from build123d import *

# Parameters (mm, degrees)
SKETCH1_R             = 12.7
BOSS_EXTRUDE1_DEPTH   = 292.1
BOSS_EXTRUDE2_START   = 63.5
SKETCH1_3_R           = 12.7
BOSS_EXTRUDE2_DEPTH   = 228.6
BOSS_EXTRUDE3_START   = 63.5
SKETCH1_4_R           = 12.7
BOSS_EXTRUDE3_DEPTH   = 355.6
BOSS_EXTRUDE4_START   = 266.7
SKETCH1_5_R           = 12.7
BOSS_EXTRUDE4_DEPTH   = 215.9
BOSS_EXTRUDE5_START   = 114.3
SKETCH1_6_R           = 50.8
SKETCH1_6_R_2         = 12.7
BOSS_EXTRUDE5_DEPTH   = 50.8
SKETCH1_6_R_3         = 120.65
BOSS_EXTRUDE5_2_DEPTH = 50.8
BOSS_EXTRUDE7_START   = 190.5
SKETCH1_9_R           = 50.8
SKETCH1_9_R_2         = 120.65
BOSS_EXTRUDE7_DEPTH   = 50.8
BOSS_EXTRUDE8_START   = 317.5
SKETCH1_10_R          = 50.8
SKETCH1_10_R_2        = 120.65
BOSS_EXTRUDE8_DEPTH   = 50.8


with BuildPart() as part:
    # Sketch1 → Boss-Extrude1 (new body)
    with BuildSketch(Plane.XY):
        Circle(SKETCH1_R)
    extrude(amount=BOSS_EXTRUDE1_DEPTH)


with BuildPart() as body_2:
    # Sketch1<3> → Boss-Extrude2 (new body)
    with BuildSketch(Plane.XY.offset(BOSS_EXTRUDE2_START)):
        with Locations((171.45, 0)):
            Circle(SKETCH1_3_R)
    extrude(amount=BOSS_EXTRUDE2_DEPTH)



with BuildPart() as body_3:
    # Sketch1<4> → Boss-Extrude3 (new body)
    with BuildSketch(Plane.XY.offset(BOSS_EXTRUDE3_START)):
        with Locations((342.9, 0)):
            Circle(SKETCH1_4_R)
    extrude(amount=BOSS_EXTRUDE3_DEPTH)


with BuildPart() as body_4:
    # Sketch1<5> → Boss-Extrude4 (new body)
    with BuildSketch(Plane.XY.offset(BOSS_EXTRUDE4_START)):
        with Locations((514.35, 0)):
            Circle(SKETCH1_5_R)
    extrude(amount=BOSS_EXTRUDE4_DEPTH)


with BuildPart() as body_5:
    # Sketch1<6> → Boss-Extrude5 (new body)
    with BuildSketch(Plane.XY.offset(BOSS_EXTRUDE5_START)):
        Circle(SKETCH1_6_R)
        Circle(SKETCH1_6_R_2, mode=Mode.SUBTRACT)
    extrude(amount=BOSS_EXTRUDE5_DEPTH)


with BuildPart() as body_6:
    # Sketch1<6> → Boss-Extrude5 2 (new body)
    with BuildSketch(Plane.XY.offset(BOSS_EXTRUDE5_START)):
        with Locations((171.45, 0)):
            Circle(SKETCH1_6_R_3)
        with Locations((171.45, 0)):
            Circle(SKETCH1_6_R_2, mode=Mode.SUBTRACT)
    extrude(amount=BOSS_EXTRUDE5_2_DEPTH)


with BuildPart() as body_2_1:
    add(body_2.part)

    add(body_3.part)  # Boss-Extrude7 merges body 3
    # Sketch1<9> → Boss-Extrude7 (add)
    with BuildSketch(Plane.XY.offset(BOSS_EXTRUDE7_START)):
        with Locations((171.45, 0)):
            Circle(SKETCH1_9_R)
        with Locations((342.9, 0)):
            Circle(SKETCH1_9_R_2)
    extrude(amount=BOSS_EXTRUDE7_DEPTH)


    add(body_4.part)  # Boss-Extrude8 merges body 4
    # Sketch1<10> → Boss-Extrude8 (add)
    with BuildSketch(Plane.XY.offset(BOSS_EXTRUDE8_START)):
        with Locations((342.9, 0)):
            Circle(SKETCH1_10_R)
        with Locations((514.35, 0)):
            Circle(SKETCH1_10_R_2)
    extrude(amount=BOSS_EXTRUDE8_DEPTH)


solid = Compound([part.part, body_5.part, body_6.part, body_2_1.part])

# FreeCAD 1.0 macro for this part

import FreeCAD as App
import Part
import Sketcher
Q = App.Units.Quantity

doc = App.newDocument("Part")
params = doc.addObject("Spreadsheet::Sheet", "Params")
for row, (alias, value) in enumerate([
    ("sketch1_diameter", "1 in"),
    ("pad1_length", "11.5 in"),
    ("sketch2_diameter", "1 in"),
    ("pad2_length", "9 in"),
    ("sketch3_diameter", "1 in"),
    ("pad3_length", "14 in"),
    ("sketch4_diameter", "1 in"),
    ("pad4_length", "8.5 in"),
    ("sketch5_diameter", "4 in"),
    ("sketch5_diameter2", "1 in"),
    ("pad5_length", "2 in"),
    ("sketch6_diameter", "1 in"),
    ("sketch6_diameter2", "9.5 in"),
    ("pad6_length", "2 in"),
    ("sketch7_diameter", "4 in"),
    ("sketch7_diameter2", "9.5 in"),
    ("pad7_length", "2 in"),
    ("sketch8_diameter", "4 in"),
    ("sketch8_diameter2", "9.5 in"),
    ("pad8_length", "2 in"),
], start=1):
    params.set(f"A{row}", alias)
    params.set(f"B{row}", "=" + value)
    params.setAlias(f"B{row}", alias)

body = doc.addObject("PartDesign::Body", "Body")

sketch1 = body.newObject("Sketcher::SketchObject", "Sketch")
sketch1.AttachmentSupport = (doc.getObject("XY_Plane"), [""])
sketch1.MapMode = "FlatFace"
sketch1.addGeometry(Part.Circle(App.Vector(0, 0, 0), App.Vector(0, 0, 1), 13), False)
sketch1.addConstraint([
    Sketcher.Constraint("Coincident", 0, 3, -1, 1),
    Sketcher.Constraint("Diameter", 0, Q("1 in")),
])
sketch1.setExpression("Constraints[1]", "Params.sketch1_diameter")
pad1 = body.newObject("PartDesign::Pad", "Pad")
pad1.Profile = sketch1
pad1.setExpression("Length", "Params.pad1_length")
body2 = doc.addObject("PartDesign::Body", "Body001")

sketch2 = body2.newObject("Sketcher::SketchObject", "Sketch001")
sketch2.AttachmentSupport = (doc.getObject("XY_Plane001"), [""])
sketch2.MapMode = "FlatFace"
sketch2.AttachmentOffset = App.Placement(App.Vector(0, 0, 2.5 * 25.4), App.Rotation())
sketch2.addGeometry(Part.Circle(App.Vector(171, 0, 0), App.Vector(0, 0, 1), 13), False)
sketch2.addConstraint([
    Sketcher.Constraint("PointOnObject", 0, 3, -1),
    Sketcher.Constraint("Diameter", 0, Q("1 in")),
    Sketcher.Constraint("DistanceX", -1, 1, 0, 3, Q("6.75 in")),
])
sketch2.setExpression("Constraints[1]", "Params.sketch2_diameter")
pad2 = body2.newObject("PartDesign::Pad", "Pad001")
pad2.Profile = sketch2
pad2.setExpression("Length", "Params.pad2_length")
body3 = doc.addObject("PartDesign::Body", "Body002")

sketch3 = body3.newObject("Sketcher::SketchObject", "Sketch002")
sketch3.AttachmentSupport = (doc.getObject("XY_Plane002"), [""])
sketch3.MapMode = "FlatFace"
sketch3.AttachmentOffset = App.Placement(App.Vector(0, 0, 2.5 * 25.4), App.Rotation())
sketch3.addGeometry(Part.Circle(App.Vector(343, 0, 0), App.Vector(0, 0, 1), 13), False)
sketch3.addConstraint([
    Sketcher.Constraint("PointOnObject", 0, 3, -1),
    Sketcher.Constraint("Diameter", 0, Q("1 in")),
    Sketcher.Constraint("DistanceX", -1, 1, 0, 3, Q("13.5 in")),
])
sketch3.setExpression("Constraints[1]", "Params.sketch3_diameter")
pad3 = body3.newObject("PartDesign::Pad", "Pad002")
pad3.Profile = sketch3
pad3.setExpression("Length", "Params.pad3_length")
body4 = doc.addObject("PartDesign::Body", "Body003")

sketch4 = body4.newObject("Sketcher::SketchObject", "Sketch003")
sketch4.AttachmentSupport = (doc.getObject("XY_Plane003"), [""])
sketch4.MapMode = "FlatFace"
sketch4.AttachmentOffset = App.Placement(App.Vector(0, 0, 10.5 * 25.4), App.Rotation())
sketch4.addGeometry(Part.Circle(App.Vector(514, 0, 0), App.Vector(0, 0, 1), 13), False)
sketch4.addConstraint([
    Sketcher.Constraint("PointOnObject", 0, 3, -1),
    Sketcher.Constraint("Diameter", 0, Q("1 in")),
    Sketcher.Constraint("DistanceX", -1, 1, 0, 3, Q("20.25 in")),
])
sketch4.setExpression("Constraints[1]", "Params.sketch4_diameter")
pad4 = body4.newObject("PartDesign::Pad", "Pad003")
pad4.Profile = sketch4
pad4.setExpression("Length", "Params.pad4_length")
body5 = doc.addObject("PartDesign::Body", "Body004")

sketch5 = body5.newObject("Sketcher::SketchObject", "Sketch004")
sketch5.AttachmentSupport = (doc.getObject("XY_Plane004"), [""])
sketch5.MapMode = "FlatFace"
sketch5.AttachmentOffset = App.Placement(App.Vector(0, 0, 4.5 * 25.4), App.Rotation())
sketch5.addGeometry([
    Part.Circle(App.Vector(0, 0, 0), App.Vector(0, 0, 1), 51),
    Part.Circle(App.Vector(0, 0, 0), App.Vector(0, 0, 1), 13),
], False)
sketch5.addConstraint([
    Sketcher.Constraint("Coincident", 0, 3, -1, 1),
    Sketcher.Constraint("Coincident", 1, 3, -1, 1),
    Sketcher.Constraint("Diameter", 0, Q("4 in")),
    Sketcher.Constraint("Diameter", 1, Q("1 in")),
])
sketch5.setExpression("Constraints[2]", "Params.sketch5_diameter")
sketch5.setExpression("Constraints[3]", "Params.sketch5_diameter2")
pad5 = body5.newObject("PartDesign::Pad", "Pad004")
pad5.Profile = sketch5
pad5.setExpression("Length", "Params.pad5_length")
body6 = doc.addObject("PartDesign::Body", "Body005")

sketch6 = body6.newObject("Sketcher::SketchObject", "Sketch005")
sketch6.AttachmentSupport = (doc.getObject("XY_Plane005"), [""])
sketch6.MapMode = "FlatFace"
sketch6.AttachmentOffset = App.Placement(App.Vector(0, 0, 4.5 * 25.4), App.Rotation())
sketch6.addGeometry([
    Part.Circle(App.Vector(171, 0, 0), App.Vector(0, 0, 1), 121),
    Part.Circle(App.Vector(171, 0, 0), App.Vector(0, 0, 1), 13),
], False)
sketch6.addConstraint([
    Sketcher.Constraint("Coincident", 1, 3, 0, 3),
    Sketcher.Constraint("PointOnObject", 0, 3, -1),
    Sketcher.Constraint("Diameter", 1, Q("1 in")),
    Sketcher.Constraint("Diameter", 0, Q("9.5 in")),
    Sketcher.Constraint("DistanceX", -1, 1, 0, 3, Q("6.75 in")),
])
sketch6.setExpression("Constraints[2]", "Params.sketch6_diameter")
sketch6.setExpression("Constraints[3]", "Params.sketch6_diameter2")
pad6 = body6.newObject("PartDesign::Pad", "Pad005")
pad6.Profile = sketch6
pad6.setExpression("Length", "Params.pad6_length")
body2.AllowCompound = True
doc.recompute()

boolean = body2.newObject("PartDesign::Boolean", "Boolean")
boolean.Type = "Fuse"
boolean.addObjects([body3])

sketch7 = body2.newObject("Sketcher::SketchObject", "Sketch006")
sketch7.AttachmentSupport = (doc.getObject("XY_Plane001"), [""])
sketch7.MapMode = "FlatFace"
sketch7.AttachmentOffset = App.Placement(App.Vector(0, 0, 7.5 * 25.4), App.Rotation())
sketch7.addGeometry([
    Part.Circle(App.Vector(171, 0, 0), App.Vector(0, 0, 1), 51),
    Part.Circle(App.Vector(343, 0, 0), App.Vector(0, 0, 1), 121),
], False)
sketch7.addConstraint([
    Sketcher.Constraint("PointOnObject", 0, 3, -1),
    Sketcher.Constraint("PointOnObject", 1, 3, -1),
    Sketcher.Constraint("Diameter", 0, Q("4 in")),
    Sketcher.Constraint("Diameter", 1, Q("9.5 in")),
    Sketcher.Constraint("DistanceX", -1, 1, 1, 3, Q("13.5 in")),
    Sketcher.Constraint("DistanceX", -1, 1, 0, 3, Q("6.75 in")),
])
sketch7.setExpression("Constraints[2]", "Params.sketch7_diameter")
sketch7.setExpression("Constraints[3]", "Params.sketch7_diameter2")
pad7 = body2.newObject("PartDesign::Pad", "Pad006")
pad7.Profile = sketch7
pad7.setExpression("Length", "Params.pad7_length")
doc.recompute()

boolean2 = body2.newObject("PartDesign::Boolean", "Boolean001")
boolean2.Type = "Fuse"
boolean2.addObjects([body4])

sketch8 = body2.newObject("Sketcher::SketchObject", "Sketch007")
sketch8.AttachmentSupport = (doc.getObject("XY_Plane001"), [""])
sketch8.MapMode = "FlatFace"
sketch8.AttachmentOffset = App.Placement(App.Vector(0, 0, 12.5 * 25.4), App.Rotation())
sketch8.addGeometry([
    Part.Circle(App.Vector(343, 0, 0), App.Vector(0, 0, 1), 51),
    Part.Circle(App.Vector(514, 0, 0), App.Vector(0, 0, 1), 121),
], False)
sketch8.addConstraint([
    Sketcher.Constraint("PointOnObject", 0, 3, -1),
    Sketcher.Constraint("PointOnObject", 1, 3, -1),
    Sketcher.Constraint("Diameter", 0, Q("4 in")),
    Sketcher.Constraint("Diameter", 1, Q("9.5 in")),
    Sketcher.Constraint("DistanceX", -1, 1, 0, 3, Q("13.5 in")),
    Sketcher.Constraint("DistanceX", -1, 1, 1, 3, Q("20.25 in")),
])
sketch8.setExpression("Constraints[2]", "Params.sketch8_diameter")
sketch8.setExpression("Constraints[3]", "Params.sketch8_diameter2")
pad8 = body2.newObject("PartDesign::Pad", "Pad007")
pad8.Profile = sketch8
pad8.setExpression("Length", "Params.pad8_length")

doc.recompute()
